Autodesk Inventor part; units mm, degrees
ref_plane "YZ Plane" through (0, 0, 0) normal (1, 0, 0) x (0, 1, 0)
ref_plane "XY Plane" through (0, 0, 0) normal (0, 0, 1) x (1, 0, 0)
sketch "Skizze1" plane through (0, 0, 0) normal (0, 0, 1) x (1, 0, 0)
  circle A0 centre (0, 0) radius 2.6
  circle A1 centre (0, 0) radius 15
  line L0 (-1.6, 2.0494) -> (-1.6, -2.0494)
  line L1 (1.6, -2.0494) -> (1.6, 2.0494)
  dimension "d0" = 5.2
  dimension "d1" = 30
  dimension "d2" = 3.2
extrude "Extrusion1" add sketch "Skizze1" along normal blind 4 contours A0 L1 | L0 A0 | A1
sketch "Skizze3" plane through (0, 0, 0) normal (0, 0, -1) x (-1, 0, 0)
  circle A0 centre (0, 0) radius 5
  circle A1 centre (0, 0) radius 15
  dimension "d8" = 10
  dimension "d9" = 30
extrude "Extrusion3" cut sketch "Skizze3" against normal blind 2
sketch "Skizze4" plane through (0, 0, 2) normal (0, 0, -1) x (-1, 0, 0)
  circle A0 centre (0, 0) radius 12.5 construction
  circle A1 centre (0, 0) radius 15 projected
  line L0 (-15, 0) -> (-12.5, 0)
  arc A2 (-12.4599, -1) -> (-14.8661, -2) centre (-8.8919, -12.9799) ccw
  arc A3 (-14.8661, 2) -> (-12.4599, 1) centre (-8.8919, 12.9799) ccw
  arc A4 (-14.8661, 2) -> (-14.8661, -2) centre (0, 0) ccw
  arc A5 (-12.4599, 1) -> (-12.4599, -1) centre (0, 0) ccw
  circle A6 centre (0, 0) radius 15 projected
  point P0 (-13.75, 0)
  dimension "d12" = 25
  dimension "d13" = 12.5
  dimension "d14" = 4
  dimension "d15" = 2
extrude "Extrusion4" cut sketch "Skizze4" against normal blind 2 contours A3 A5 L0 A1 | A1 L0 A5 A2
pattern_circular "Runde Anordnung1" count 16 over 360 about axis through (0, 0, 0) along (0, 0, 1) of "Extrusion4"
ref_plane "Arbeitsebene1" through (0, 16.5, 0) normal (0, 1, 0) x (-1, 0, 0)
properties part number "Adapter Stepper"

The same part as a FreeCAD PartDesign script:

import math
import FreeCAD as App
import Part
import Sketcher

V = App.Vector

doc = App.newDocument("Part")
params = doc.addObject("Spreadsheet::Sheet", "Params")
for row, (alias, value) in enumerate([
    ("sketch1_diameter", "30 mm"),
    ("sketch1_radius", "2.6 mm"),
    ("pad1_length", "4 mm"),
    ("sketch2_diameter", "30 mm"),
    ("sketch2_diameter2", "10 mm"),
    ("pocket1_length", "2 mm"),
    ("sketch3_radius", "12.5 mm"),
    ("sketch3_radius2", "15 mm"),
    ("pocket2_length", "2 mm"),
], start=1):
    params.set(f"A{row}", alias)
    params.set(f"B{row}", "=" + value)
    params.setAlias(f"B{row}", alias)

body = doc.addObject("PartDesign::Body", "Body")

# Sketch on XY plane
sketch1 = body.newObject("Sketcher::SketchObject", "Sketch")
sketch1.AttachmentSupport = (doc.getObject("XY_Plane"), [""])
sketch1.MapMode = "FlatFace"
sketch1.addGeometry([
    Part.Circle(V(0, 0, 0), V(0, 0, 1), 15),  # 0
    Part.LineSegment(V(1.6, 2, 0), V(1.6, -2, 0)),  # 1
    Part.ArcOfCircle(Part.Circle(V(0, 0, 0), V(0, 0, 1), 2.6), math.radians(-128), math.radians(-52)),  # 2
    Part.LineSegment(V(-1.6, -2, 0), V(-1.6, 2, 0)),  # 3
    Part.ArcOfCircle(Part.Circle(V(0, 0, 0), V(0, 0, 1), 2.6), math.radians(52), math.radians(128)),  # 4
], False)
sketch1.addConstraint([
    Sketcher.Constraint("Coincident", 1, 2, 2, 2),
    Sketcher.Constraint("Coincident", 2, 1, 3, 1),
    Sketcher.Constraint("Coincident", 3, 2, 4, 2),
    Sketcher.Constraint("Coincident", 4, 1, 1, 1),
    Sketcher.Constraint("Vertical", 1),
    Sketcher.Constraint("Vertical", 3),
    Sketcher.Constraint("Coincident", 0, 3, -1, 1),
    Sketcher.Constraint("Coincident", 2, 3, -1, 1),
    Sketcher.Constraint("Coincident", 4, 3, -1, 1),
    Sketcher.Constraint("Equal", 2, 4),
    Sketcher.Constraint("Horizontal", 1, 2, 2, 1),
    Sketcher.Constraint("Diameter", 0, 30.0),
    Sketcher.Constraint("Radius", 2, 2.6),
    Sketcher.Constraint("DistanceX", 2, 1, 1, 2, 3.2),
])
sketch1.setExpression("Constraints[11]", "Params.sketch1_diameter")
sketch1.setExpression("Constraints[12]", "Params.sketch1_radius")
pad1 = body.newObject("PartDesign::Pad", "Pad")
pad1.Profile = sketch1
pad1.setExpression("Length", "Params.pad1_length")

# Sketch on XY plane
sketch2 = body.newObject("Sketcher::SketchObject", "Sketch001")
sketch2.AttachmentSupport = (doc.getObject("XY_Plane"), [""])
sketch2.MapMode = "FlatFace"
sketch2.addGeometry([
    Part.Circle(V(0, 0, 0), V(0, 0, 1), 15),
    Part.Circle(V(0, 0, 0), V(0, 0, 1), 5),
], False)
sketch2.addConstraint([
    Sketcher.Constraint("Coincident", 0, 3, -1, 1),
    Sketcher.Constraint("Coincident", 1, 3, -1, 1),
    Sketcher.Constraint("Diameter", 0, 30.0),
    Sketcher.Constraint("Diameter", 1, 10.0),
])
sketch2.setExpression("Constraints[2]", "Params.sketch2_diameter")
sketch2.setExpression("Constraints[3]", "Params.sketch2_diameter2")
pocket1 = body.newObject("PartDesign::Pocket", "Pocket")
pocket1.Profile = sketch2
pocket1.setExpression("Length", "Params.pocket1_length")
pocket1.Reversed = True

# Sketch on XY plane
sketch3 = body.newObject("Sketcher::SketchObject", "Sketch002")
sketch3.AttachmentSupport = (doc.getObject("XY_Plane"), [""])
sketch3.MapMode = "FlatFace"
sketch3.AttachmentOffset = App.Placement(V(0, 0, 2), App.Rotation())
sketch3.addGeometry([
    Part.ArcOfCircle(Part.Circle(V(8.9, 13, 0), V(0, 0, 1), 12.5), math.radians(-73.42), math.radians(-61.45)),
    Part.ArcOfCircle(Part.Circle(V(0, 0, 0), V(0, 0, 1), 15), math.radians(-7.66), math.radians(7.66)),
    Part.ArcOfCircle(Part.Circle(V(8.9, -13, 0), V(0, 0, 1), 12.5), math.radians(61.45), math.radians(73.41)),
    Part.ArcOfCircle(Part.Circle(V(0, 0, 0), V(0, 0, 1), 12.5), math.radians(-4.59), math.radians(4.59)),
], False)
sketch3.addConstraint([
    Sketcher.Constraint("Coincident", 0, 2, 1, 2),
    Sketcher.Constraint("Coincident", 1, 1, 2, 1),
    Sketcher.Constraint("Coincident", 2, 2, 3, 1),
    Sketcher.Constraint("Coincident", 3, 2, 0, 1),
    Sketcher.Constraint("Coincident", 1, 3, -1, 1),
    Sketcher.Constraint("Coincident", 3, 3, -1, 1),
    Sketcher.Constraint("Vertical", 0, 2, 1, 1),
    Sketcher.Constraint("Radius", 3, 12.5),
    Sketcher.Constraint("DistanceY", -1, 1, 0, 2, 2.0),
    Sketcher.Constraint("Radius", 1, 15.0),
    Sketcher.Constraint("DistanceY", 2, 2, 3, 2, 2.0),
    Sketcher.Constraint("DistanceY", 2, 2, -1, 1, 1.0),
    Sketcher.Constraint("Radius", 0, 12.4976),
    Sketcher.Constraint("Radius", 2, 12.5023),
])
sketch3.setExpression("Constraints[7]", "Params.sketch3_radius")
sketch3.setExpression("Constraints[9]", "Params.sketch3_radius2")
pocket2 = body.newObject("PartDesign::Pocket", "Pocket001")
pocket2.Profile = sketch3
pocket2.setExpression("Length", "Params.pocket2_length")
pocket2.Reversed = True
doc.recompute()

polarpattern = body.newObject("PartDesign::PolarPattern", "PolarPattern")
polarpattern.Originals = [pocket2]
polarpattern.Axis = (doc.getObject("Z_Axis"), [""])
polarpattern.Angle = 360
polarpattern.Occurrences = 16
body.Tip = polarpattern

doc.recompute()
